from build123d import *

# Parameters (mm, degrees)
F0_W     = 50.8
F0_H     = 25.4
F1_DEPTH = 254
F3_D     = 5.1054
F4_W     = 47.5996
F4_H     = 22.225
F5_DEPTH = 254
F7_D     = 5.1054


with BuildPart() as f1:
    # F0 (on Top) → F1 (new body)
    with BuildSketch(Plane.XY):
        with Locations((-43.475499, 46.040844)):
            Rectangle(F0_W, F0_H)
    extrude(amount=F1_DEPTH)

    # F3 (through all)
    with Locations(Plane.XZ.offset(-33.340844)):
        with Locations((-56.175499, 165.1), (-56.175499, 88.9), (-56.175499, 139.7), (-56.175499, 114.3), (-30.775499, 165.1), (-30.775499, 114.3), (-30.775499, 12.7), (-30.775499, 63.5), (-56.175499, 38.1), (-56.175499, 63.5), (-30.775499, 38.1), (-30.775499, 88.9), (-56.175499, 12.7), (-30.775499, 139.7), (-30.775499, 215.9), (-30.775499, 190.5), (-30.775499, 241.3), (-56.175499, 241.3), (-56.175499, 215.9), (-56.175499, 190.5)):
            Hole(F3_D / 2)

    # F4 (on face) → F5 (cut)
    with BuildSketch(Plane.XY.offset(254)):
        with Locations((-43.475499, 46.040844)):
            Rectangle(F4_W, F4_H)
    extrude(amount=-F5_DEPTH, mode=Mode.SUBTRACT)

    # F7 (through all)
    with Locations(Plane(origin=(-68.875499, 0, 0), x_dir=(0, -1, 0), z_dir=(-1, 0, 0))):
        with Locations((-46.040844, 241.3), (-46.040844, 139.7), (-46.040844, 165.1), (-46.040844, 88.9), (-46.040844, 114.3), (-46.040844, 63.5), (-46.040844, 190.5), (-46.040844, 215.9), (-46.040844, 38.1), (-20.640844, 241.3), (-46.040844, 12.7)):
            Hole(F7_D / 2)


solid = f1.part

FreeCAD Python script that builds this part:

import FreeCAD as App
import Part
import Sketcher
from FreeCAD import Vector
Q = App.Units.Quantity


def add_polygon(sketch, points):
    """Adds a closed chain of lines whose ends are joined by coincident constraints."""
    first, n = sketch.GeometryCount, len(points)
    for a, b in zip(points, points[1:] + points[:1]):
        sketch.addGeometry(Part.LineSegment(App.Vector(*a, 0), App.Vector(*b, 0)), False)
    for i in range(n):
        sketch.addConstraint(Sketcher.Constraint("Coincident", first + i, 2, first + (i + 1) % n, 1))

doc = App.newDocument("Part")
body = doc.addObject("PartDesign::Body", "Body")

# Sketch on XY plane
sketch1 = body.newObject("Sketcher::SketchObject", "Sketch")
sketch1.AttachmentSupport = (doc.getObject("XY_Plane"), [""])
sketch1.MapMode = "FlatFace"
add_polygon(sketch1, [(-69, 59), (-69, 33), (-18, 33), (-18, 59)])  # lines 0-3
sketch1.addConstraint(Sketcher.Constraint("Vertical", 0))
sketch1.addConstraint(Sketcher.Constraint("Horizontal", 1))
sketch1.addConstraint(Sketcher.Constraint("Vertical", 2))
sketch1.addConstraint(Sketcher.Constraint("Horizontal", 3))
sketch1.addConstraint(Sketcher.Constraint("DistanceX", 1, 1, 1, 2, Q("2 in")))
sketch1.addConstraint(Sketcher.Constraint("DistanceY", 0, 2, 0, 1, Q("1 in")))
sketch1.addConstraint(Sketcher.Constraint("DistanceX", 0, 2, -1, 1, 68.875499))
sketch1.addConstraint(Sketcher.Constraint("DistanceY", -1, 1, 0, 2, 33.340844))
pad1 = body.newObject("PartDesign::Pad", "Pad")
pad1.Profile = sketch1
pad1.Length = Q("10 in")

# Sketch on XZ plane
sketch2 = body.newObject("Sketcher::SketchObject", "Sketch001")
sketch2.AttachmentSupport = (doc.getObject("XZ_Plane"), [""])
sketch2.MapMode = "FlatFace"
sketch2.AttachmentOffset = App.Placement(Vector(0, 0, -33.340844), App.Rotation())
sketch2.addGeometry(Part.Circle(Vector(-56.2, 165.1, 0), Vector(0, 0, 1), 2.6), False)
sketch2.addGeometry(Part.Circle(Vector(-56.2, 88.9, 0), Vector(0, 0, 1), 2.6), False)
sketch2.addGeometry(Part.Circle(Vector(-56.2, 139.7, 0), Vector(0, 0, 1), 2.6), False)
sketch2.addGeometry(Part.Circle(Vector(-56.2, 114.3, 0), Vector(0, 0, 1), 2.6), False)
sketch2.addGeometry(Part.Circle(Vector(-30.8, 165.1, 0), Vector(0, 0, 1), 2.6), False)
sketch2.addGeometry(Part.Circle(Vector(-30.8, 114.3, 0), Vector(0, 0, 1), 2.6), False)
sketch2.addGeometry(Part.Circle(Vector(-30.8, 12.7, 0), Vector(0, 0, 1), 2.6), False)
sketch2.addGeometry(Part.Circle(Vector(-30.8, 63.5, 0), Vector(0, 0, 1), 2.6), False)
sketch2.addGeometry(Part.Circle(Vector(-56.2, 38.1, 0), Vector(0, 0, 1), 2.6), False)
sketch2.addGeometry(Part.Circle(Vector(-56.2, 63.5, 0), Vector(0, 0, 1), 2.6), False)
sketch2.addGeometry(Part.Circle(Vector(-30.8, 38.1, 0), Vector(0, 0, 1), 2.6), False)
sketch2.addGeometry(Part.Circle(Vector(-30.8, 88.9, 0), Vector(0, 0, 1), 2.6), False)
sketch2.addGeometry(Part.Circle(Vector(-56.2, 12.7, 0), Vector(0, 0, 1), 2.6), False)
sketch2.addGeometry(Part.Circle(Vector(-30.8, 139.7, 0), Vector(0, 0, 1), 2.6), False)
sketch2.addGeometry(Part.Circle(Vector(-30.8, 215.9, 0), Vector(0, 0, 1), 2.6), False)
sketch2.addGeometry(Part.Circle(Vector(-30.8, 190.5, 0), Vector(0, 0, 1), 2.6), False)
sketch2.addGeometry(Part.Circle(Vector(-30.8, 241.3, 0), Vector(0, 0, 1), 2.6), False)
sketch2.addGeometry(Part.Circle(Vector(-56.2, 241.3, 0), Vector(0, 0, 1), 2.6), False)
sketch2.addGeometry(Part.Circle(Vector(-56.2, 215.9, 0), Vector(0, 0, 1), 2.6), False)
sketch2.addGeometry(Part.Circle(Vector(-56.2, 190.5, 0), Vector(0, 0, 1), 2.6), False)
sketch2.addConstraint(Sketcher.Constraint("Equal", 0, 1))
sketch2.addConstraint(Sketcher.Constraint("Equal", 1, 2))
sketch2.addConstraint(Sketcher.Constraint("Equal", 2, 3))
sketch2.addConstraint(Sketcher.Constraint("Equal", 3, 4))
sketch2.addConstraint(Sketcher.Constraint("Equal", 4, 5))
sketch2.addConstraint(Sketcher.Constraint("Equal", 5, 6))
sketch2.addConstraint(Sketcher.Constraint("Equal", 6, 7))
sketch2.addConstraint(Sketcher.Constraint("Equal", 7, 8))
sketch2.addConstraint(Sketcher.Constraint("Equal", 8, 9))
sketch2.addConstraint(Sketcher.Constraint("Equal", 9, 10))
sketch2.addConstraint(Sketcher.Constraint("Equal", 10, 11))
sketch2.addConstraint(Sketcher.Constraint("Equal", 11, 12))
sketch2.addConstraint(Sketcher.Constraint("Equal", 12, 13))
sketch2.addConstraint(Sketcher.Constraint("Equal", 13, 14))
sketch2.addConstraint(Sketcher.Constraint("Equal", 14, 15))
sketch2.addConstraint(Sketcher.Constraint("Equal", 15, 16))
sketch2.addConstraint(Sketcher.Constraint("Equal", 16, 17))
sketch2.addConstraint(Sketcher.Constraint("Equal", 17, 18))
sketch2.addConstraint(Sketcher.Constraint("Equal", 18, 19))
sketch2.addConstraint(Sketcher.Constraint("Horizontal", 0, 3, 4, 3))
sketch2.addConstraint(Sketcher.Constraint("Horizontal", 3, 3, 5, 3))
sketch2.addConstraint(Sketcher.Constraint("Horizontal", 7, 3, 9, 3))
sketch2.addConstraint(Sketcher.Constraint("Horizontal", 8, 3, 10, 3))
sketch2.addConstraint(Sketcher.Constraint("Horizontal", 1, 3, 11, 3))
sketch2.addConstraint(Sketcher.Constraint("Horizontal", 6, 3, 12, 3))
sketch2.addConstraint(Sketcher.Constraint("Horizontal", 2, 3, 13, 3))
sketch2.addConstraint(Sketcher.Constraint("Horizontal", 16, 3, 17, 3))
sketch2.addConstraint(Sketcher.Constraint("Horizontal", 14, 3, 18, 3))
sketch2.addConstraint(Sketcher.Constraint("Horizontal", 15, 3, 19, 3))
sketch2.addConstraint(Sketcher.Constraint("Vertical", 0, 3, 1, 3))
sketch2.addConstraint(Sketcher.Constraint("Vertical", 1, 3, 2, 3))
sketch2.addConstraint(Sketcher.Constraint("Vertical", 2, 3, 3, 3))
sketch2.addConstraint(Sketcher.Constraint("Vertical", 4, 3, 5, 3))
sketch2.addConstraint(Sketcher.Constraint("Vertical", 5, 3, 6, 3))
sketch2.addConstraint(Sketcher.Constraint("Vertical", 6, 3, 7, 3))
sketch2.addConstraint(Sketcher.Constraint("Vertical", 3, 3, 8, 3))
sketch2.addConstraint(Sketcher.Constraint("Vertical", 8, 3, 9, 3))
sketch2.addConstraint(Sketcher.Constraint("Vertical", 7, 3, 10, 3))
sketch2.addConstraint(Sketcher.Constraint("Vertical", 10, 3, 11, 3))
sketch2.addConstraint(Sketcher.Constraint("Vertical", 9, 3, 12, 3))
sketch2.addConstraint(Sketcher.Constraint("Vertical", 11, 3, 13, 3))
sketch2.addConstraint(Sketcher.Constraint("Vertical", 13, 3, 14, 3))
sketch2.addConstraint(Sketcher.Constraint("Vertical", 14, 3, 15, 3))
sketch2.addConstraint(Sketcher.Constraint("Vertical", 15, 3, 16, 3))
sketch2.addConstraint(Sketcher.Constraint("Vertical", 12, 3, 17, 3))
sketch2.addConstraint(Sketcher.Constraint("Vertical", 17, 3, 18, 3))
sketch2.addConstraint(Sketcher.Constraint("Vertical", 18, 3, 19, 3))
sketch2.addConstraint(Sketcher.Constraint("Diameter", 0, Q("0.201 in")))
sketch2.addConstraint(Sketcher.Constraint("DistanceY", 1, 3, 0, 3, Q("3 in")))
sketch2.addConstraint(Sketcher.Constraint("DistanceY", 2, 3, 0, 3, Q("1 in")))
sketch2.addConstraint(Sketcher.Constraint("DistanceY", 1, 3, 3, 3, Q("1 in")))
sketch2.addConstraint(Sketcher.Constraint("DistanceX", 0, 3, 4, 3, Q("1 in")))
sketch2.addConstraint(Sketcher.Constraint("DistanceY", 6, 3, 1, 3, Q("3 in")))
sketch2.addConstraint(Sketcher.Constraint("DistanceY", 7, 3, 1, 3, Q("1 in")))
sketch2.addConstraint(Sketcher.Constraint("DistanceY", 6, 3, 8, 3, Q("1 in")))
sketch2.addConstraint(Sketcher.Constraint("DistanceY", 4, 3, 14, 3, Q("2 in")))
sketch2.addConstraint(Sketcher.Constraint("DistanceY", 4, 3, 15, 3, Q("1 in")))
sketch2.addConstraint(Sketcher.Constraint("DistanceY", 14, 3, 16, 3, Q("1 in")))
sketch2.addConstraint(Sketcher.Constraint("DistanceY", -1, 1, 0, 3, Q("6.5 in")))
sketch2.addConstraint(Sketcher.Constraint("DistanceX", 0, 3, -1, 1, 56.175499))
doc.recompute()
hole = body.newObject("PartDesign::Hole", "Hole")
hole.Profile = sketch2
hole.ThreadType = "None"
hole.Diameter = Q("0.201 in")
hole.DepthType = "ThroughAll"

# Sketch on XY plane
sketch3 = body.newObject("Sketcher::SketchObject", "Sketch002")
sketch3.AttachmentSupport = (doc.getObject("XY_Plane"), [""])
sketch3.MapMode = "FlatFace"
sketch3.AttachmentOffset = App.Placement(Vector(0, 0, 10 * 25.4), App.Rotation())
add_polygon(sketch3, [(-67, 57), (-67, 35), (-20, 35), (-20, 57)])  # lines 0-3
sketch3.addConstraint(Sketcher.Constraint("Vertical", 0))
sketch3.addConstraint(Sketcher.Constraint("Horizontal", 1))
sketch3.addConstraint(Sketcher.Constraint("Vertical", 2))
sketch3.addConstraint(Sketcher.Constraint("Horizontal", 3))
sketch3.addConstraint(Sketcher.Constraint("DistanceX", 1, 1, 1, 2, Q("1.874 in")))
sketch3.addConstraint(Sketcher.Constraint("DistanceY", 0, 2, 0, 1, Q("0.875 in")))
sketch3.addConstraint(Sketcher.Constraint("DistanceX", 0, 2, -1, 1, 67.275299))
sketch3.addConstraint(Sketcher.Constraint("DistanceY", -1, 1, 0, 2, 34.928344))
pocket1 = body.newObject("PartDesign::Pocket", "Pocket")
pocket1.Profile = sketch3
pocket1.Length = Q("10 in")

# Sketch on YZ plane
sketch4 = body.newObject("Sketcher::SketchObject", "Sketch003")
sketch4.AttachmentSupport = (doc.getObject("YZ_Plane"), [""])
sketch4.MapMode = "FlatFace"
sketch4.AttachmentOffset = App.Placement(Vector(0, 0, -68.875499), App.Rotation())
sketch4.addGeometry(Part.Circle(Vector(46, 241.3, 0), Vector(0, 0, 1), 2.6), False)
sketch4.addGeometry(Part.Circle(Vector(46, 139.7, 0), Vector(0, 0, 1), 2.6), False)
sketch4.addGeometry(Part.Circle(Vector(46, 165.1, 0), Vector(0, 0, 1), 2.6), False)
sketch4.addGeometry(Part.Circle(Vector(46, 88.9, 0), Vector(0, 0, 1), 2.6), False)
sketch4.addGeometry(Part.Circle(Vector(46, 114.3, 0), Vector(0, 0, 1), 2.6), False)
sketch4.addGeometry(Part.Circle(Vector(46, 63.5, 0), Vector(0, 0, 1), 2.6), False)
sketch4.addGeometry(Part.Circle(Vector(46, 190.5, 0), Vector(0, 0, 1), 2.6), False)
sketch4.addGeometry(Part.Circle(Vector(46, 215.9, 0), Vector(0, 0, 1), 2.6), False)
sketch4.addGeometry(Part.Circle(Vector(46, 38.1, 0), Vector(0, 0, 1), 2.6), False)
sketch4.addGeometry(Part.Circle(Vector(20.6, 241.3, 0), Vector(0, 0, 1), 2.6), False)
sketch4.addGeometry(Part.Circle(Vector(46, 12.7, 0), Vector(0, 0, 1), 2.6), False)
sketch4.addConstraint(Sketcher.Constraint("Equal", 0, 1))
sketch4.addConstraint(Sketcher.Constraint("Equal", 1, 2))
sketch4.addConstraint(Sketcher.Constraint("Equal", 2, 3))
sketch4.addConstraint(Sketcher.Constraint("Equal", 3, 4))
sketch4.addConstraint(Sketcher.Constraint("Equal", 4, 5))
sketch4.addConstraint(Sketcher.Constraint("Equal", 5, 6))
sketch4.addConstraint(Sketcher.Constraint("Equal", 6, 7))
sketch4.addConstraint(Sketcher.Constraint("Equal", 7, 8))
sketch4.addConstraint(Sketcher.Constraint("Equal", 8, 9))
sketch4.addConstraint(Sketcher.Constraint("Equal", 9, 10))
sketch4.addConstraint(Sketcher.Constraint("Horizontal", 0, 3, 9, 3))
sketch4.addConstraint(Sketcher.Constraint("Vertical", 0, 3, 1, 3))
sketch4.addConstraint(Sketcher.Constraint("Vertical", 1, 3, 2, 3))
sketch4.addConstraint(Sketcher.Constraint("Vertical", 2, 3, 3, 3))
sketch4.addConstraint(Sketcher.Constraint("Vertical", 3, 3, 4, 3))
sketch4.addConstraint(Sketcher.Constraint("Vertical", 4, 3, 5, 3))
sketch4.addConstraint(Sketcher.Constraint("Vertical", 5, 3, 6, 3))
sketch4.addConstraint(Sketcher.Constraint("Vertical", 6, 3, 7, 3))
sketch4.addConstraint(Sketcher.Constraint("Vertical", 7, 3, 8, 3))
sketch4.addConstraint(Sketcher.Constraint("Vertical", 8, 3, 10, 3))
sketch4.addConstraint(Sketcher.Constraint("Diameter", 0, Q("0.201 in")))
sketch4.addConstraint(Sketcher.Constraint("DistanceY", 1, 3, 0, 3, Q("4 in")))
sketch4.addConstraint(Sketcher.Constraint("DistanceY", 1, 3, 2, 3, Q("1 in")))
sketch4.addConstraint(Sketcher.Constraint("DistanceY", 3, 3, 1, 3, Q("2 in")))
sketch4.addConstraint(Sketcher.Constraint("DistanceY", 4, 3, 1, 3, Q("1 in")))
sketch4.addConstraint(Sketcher.Constraint("DistanceY", 5, 3, 3, 3, Q("1 in")))
sketch4.addConstraint(Sketcher.Constraint("DistanceY", 2, 3, 6, 3, Q("1 in")))
sketch4.addConstraint(Sketcher.Constraint("DistanceY", 7, 3, 0, 3, Q("1 in")))
sketch4.addConstraint(Sketcher.Constraint("DistanceY", 8, 3, 5, 3, Q("1 in")))
sketch4.addConstraint(Sketcher.Constraint("DistanceX", 9, 3, 0, 3, Q("1 in")))
sketch4.addConstraint(Sketcher.Constraint("DistanceY", 10, 3, 8, 3, Q("1 in")))
sketch4.addConstraint(Sketcher.Constraint("DistanceY", -1, 1, 0, 3, Q("9.5 in")))
sketch4.addConstraint(Sketcher.Constraint("DistanceX", -1, 1, 0, 3, 46.040844))
doc.recompute()
hole2 = body.newObject("PartDesign::Hole", "Hole001")
hole2.Profile = sketch4
hole2.ThreadType = "None"
hole2.Diameter = Q("0.201 in")
hole2.DepthType = "ThroughAll"
hole2.Reversed = True

doc.recompute()
